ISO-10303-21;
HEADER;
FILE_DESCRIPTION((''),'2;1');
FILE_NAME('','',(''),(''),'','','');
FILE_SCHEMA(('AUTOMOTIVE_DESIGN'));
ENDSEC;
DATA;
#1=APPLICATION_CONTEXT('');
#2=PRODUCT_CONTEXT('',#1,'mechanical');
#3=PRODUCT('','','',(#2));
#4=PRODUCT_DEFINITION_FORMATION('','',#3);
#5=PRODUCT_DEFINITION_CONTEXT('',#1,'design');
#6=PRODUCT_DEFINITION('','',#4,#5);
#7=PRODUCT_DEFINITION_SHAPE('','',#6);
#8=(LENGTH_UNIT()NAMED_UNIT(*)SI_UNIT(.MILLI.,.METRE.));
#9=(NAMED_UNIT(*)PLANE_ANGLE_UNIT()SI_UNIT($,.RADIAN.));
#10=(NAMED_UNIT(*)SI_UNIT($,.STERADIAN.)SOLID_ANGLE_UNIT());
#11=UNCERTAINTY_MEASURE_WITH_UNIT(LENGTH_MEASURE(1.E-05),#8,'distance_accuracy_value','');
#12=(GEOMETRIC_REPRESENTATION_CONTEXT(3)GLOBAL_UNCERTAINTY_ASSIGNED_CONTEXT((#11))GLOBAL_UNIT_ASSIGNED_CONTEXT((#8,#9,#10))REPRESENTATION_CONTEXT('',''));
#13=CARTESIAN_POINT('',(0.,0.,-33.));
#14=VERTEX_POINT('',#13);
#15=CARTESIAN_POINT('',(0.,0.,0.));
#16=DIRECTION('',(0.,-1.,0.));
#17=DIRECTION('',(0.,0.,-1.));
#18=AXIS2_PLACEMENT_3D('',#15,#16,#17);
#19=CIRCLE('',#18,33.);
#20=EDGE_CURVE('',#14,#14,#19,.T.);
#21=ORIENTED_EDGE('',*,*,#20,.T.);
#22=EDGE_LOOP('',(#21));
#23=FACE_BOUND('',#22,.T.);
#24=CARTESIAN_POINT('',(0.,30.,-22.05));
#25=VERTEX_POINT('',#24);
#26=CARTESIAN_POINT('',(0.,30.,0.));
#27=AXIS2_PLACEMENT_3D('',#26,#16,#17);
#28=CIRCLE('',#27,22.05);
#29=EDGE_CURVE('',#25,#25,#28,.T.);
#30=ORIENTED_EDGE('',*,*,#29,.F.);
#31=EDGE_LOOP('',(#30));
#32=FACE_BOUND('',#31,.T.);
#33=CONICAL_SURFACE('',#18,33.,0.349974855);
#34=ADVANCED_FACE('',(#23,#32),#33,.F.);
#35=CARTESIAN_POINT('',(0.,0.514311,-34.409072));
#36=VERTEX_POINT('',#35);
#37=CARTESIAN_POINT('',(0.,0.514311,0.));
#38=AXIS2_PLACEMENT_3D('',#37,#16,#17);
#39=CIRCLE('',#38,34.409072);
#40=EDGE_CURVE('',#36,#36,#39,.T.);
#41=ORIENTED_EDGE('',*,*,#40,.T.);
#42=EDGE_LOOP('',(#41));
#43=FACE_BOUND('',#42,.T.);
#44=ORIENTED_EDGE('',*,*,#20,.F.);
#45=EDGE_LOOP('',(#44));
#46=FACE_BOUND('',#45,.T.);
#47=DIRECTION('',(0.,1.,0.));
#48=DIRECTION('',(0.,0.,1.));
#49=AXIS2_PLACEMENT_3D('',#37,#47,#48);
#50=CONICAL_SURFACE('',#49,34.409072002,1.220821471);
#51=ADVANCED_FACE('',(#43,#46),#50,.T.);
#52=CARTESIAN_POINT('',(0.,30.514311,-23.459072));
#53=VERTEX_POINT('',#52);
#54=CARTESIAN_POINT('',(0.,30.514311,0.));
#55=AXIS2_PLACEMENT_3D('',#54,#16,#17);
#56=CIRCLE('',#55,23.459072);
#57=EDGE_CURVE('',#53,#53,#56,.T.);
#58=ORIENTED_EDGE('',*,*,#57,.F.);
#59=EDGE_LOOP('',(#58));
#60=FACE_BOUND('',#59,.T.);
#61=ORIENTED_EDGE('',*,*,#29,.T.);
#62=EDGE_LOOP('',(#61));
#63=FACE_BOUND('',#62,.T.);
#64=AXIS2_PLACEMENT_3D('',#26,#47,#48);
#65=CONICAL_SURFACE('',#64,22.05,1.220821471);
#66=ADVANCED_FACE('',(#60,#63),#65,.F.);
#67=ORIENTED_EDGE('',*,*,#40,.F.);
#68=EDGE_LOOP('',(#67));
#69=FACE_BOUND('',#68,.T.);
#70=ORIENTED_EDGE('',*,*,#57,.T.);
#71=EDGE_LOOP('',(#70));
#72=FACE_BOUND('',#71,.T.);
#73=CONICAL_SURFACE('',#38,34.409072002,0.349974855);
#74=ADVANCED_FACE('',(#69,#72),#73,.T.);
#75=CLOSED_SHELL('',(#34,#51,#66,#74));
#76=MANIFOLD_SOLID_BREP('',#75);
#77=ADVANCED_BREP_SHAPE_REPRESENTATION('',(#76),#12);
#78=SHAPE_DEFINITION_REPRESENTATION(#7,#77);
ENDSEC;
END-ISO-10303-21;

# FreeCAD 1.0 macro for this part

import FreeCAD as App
import Part
import Sketcher

V = App.Vector

doc = App.newDocument("Part")
body = doc.addObject("PartDesign::Body", "Body")

# Sketch on XY plane
sketch1 = body.newObject("Sketcher::SketchObject", "Sketch")
sketch1.AttachmentSupport = (doc.getObject("XY_Plane"), [""])
sketch1.MapMode = "FlatFace"
sketch1.addGeometry(Part.LineSegment(V(22.1, 30, 0), V(33, 0, 0)), False)
sketch1.addGeometry(Part.LineSegment(V(33, 0, 0), V(34.4, 0.5, 0)), False)
sketch1.addGeometry(Part.LineSegment(V(34.4, 0.5, 0), V(23.5, 30.5, 0)), False)
sketch1.addGeometry(Part.LineSegment(V(23.5, 30.5, 0), V(22.1, 30, 0)), False)
sketch1.addConstraint(Sketcher.Constraint("Coincident", 0, 2, 1, 1))
sketch1.addConstraint(Sketcher.Constraint("Coincident", 1, 2, 2, 1))
sketch1.addConstraint(Sketcher.Constraint("Coincident", 2, 2, 3, 1))
sketch1.addConstraint(Sketcher.Constraint("Coincident", 3, 2, 0, 1))
sketch1.addConstraint(Sketcher.Constraint("PointOnObject", 0, 2, -1))
sketch1.addConstraint(Sketcher.Constraint("Perpendicular", 0, 1))
sketch1.addConstraint(Sketcher.Constraint("Perpendicular", 1, 2))
sketch1.addConstraint(Sketcher.Constraint("Perpendicular", 2, 3))
sketch1.addConstraint(Sketcher.Constraint("DistanceX", -1, 1, 0, 2, 33.0))
sketch1.addConstraint(Sketcher.Constraint("DistanceY", -1, 1, 3, 2, 30.0))
sketch1.addConstraint(Sketcher.Constraint("Distance", 1, 1.5))
sketch1.addConstraint(Sketcher.Constraint("DistanceX", -1, 1, 3, 2, 22.05))
revolution = body.newObject("PartDesign::Revolution", "Revolution")
revolution.Profile = sketch1
revolution.ReferenceAxis = (sketch1, ["V_Axis"])
revolution.Angle = 360

doc.recompute()
